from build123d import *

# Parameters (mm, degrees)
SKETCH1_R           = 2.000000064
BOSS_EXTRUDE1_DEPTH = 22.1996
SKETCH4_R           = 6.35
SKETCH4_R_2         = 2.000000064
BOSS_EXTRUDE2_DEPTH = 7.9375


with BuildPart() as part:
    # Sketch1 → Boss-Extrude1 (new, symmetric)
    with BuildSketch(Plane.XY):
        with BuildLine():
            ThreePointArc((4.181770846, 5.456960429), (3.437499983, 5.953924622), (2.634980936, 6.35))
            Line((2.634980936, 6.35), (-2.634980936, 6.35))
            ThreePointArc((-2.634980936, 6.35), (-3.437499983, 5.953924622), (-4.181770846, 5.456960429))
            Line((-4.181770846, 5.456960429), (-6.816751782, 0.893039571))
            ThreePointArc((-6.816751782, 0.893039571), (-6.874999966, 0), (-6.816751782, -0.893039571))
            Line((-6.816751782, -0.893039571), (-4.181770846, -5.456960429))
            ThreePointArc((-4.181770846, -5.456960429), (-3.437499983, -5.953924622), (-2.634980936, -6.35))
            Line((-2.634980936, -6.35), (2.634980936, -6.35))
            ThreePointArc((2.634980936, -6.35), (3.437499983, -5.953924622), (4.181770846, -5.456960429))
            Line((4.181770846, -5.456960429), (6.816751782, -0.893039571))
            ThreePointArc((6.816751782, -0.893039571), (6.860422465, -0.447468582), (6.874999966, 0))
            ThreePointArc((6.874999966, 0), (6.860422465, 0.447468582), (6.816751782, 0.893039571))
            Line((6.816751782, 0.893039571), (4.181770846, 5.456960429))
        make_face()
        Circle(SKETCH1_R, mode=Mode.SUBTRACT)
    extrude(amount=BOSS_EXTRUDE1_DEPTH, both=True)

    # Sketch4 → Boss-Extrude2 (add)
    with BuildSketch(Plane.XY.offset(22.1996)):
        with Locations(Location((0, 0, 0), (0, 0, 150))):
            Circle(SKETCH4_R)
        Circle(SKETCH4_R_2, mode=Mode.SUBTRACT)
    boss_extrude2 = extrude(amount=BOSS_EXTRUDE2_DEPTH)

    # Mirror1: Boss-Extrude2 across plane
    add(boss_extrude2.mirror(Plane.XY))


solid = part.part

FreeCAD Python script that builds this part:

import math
import FreeCAD as App
import Part
import Sketcher

V = App.Vector
Q = App.Units.Quantity

doc = App.newDocument("Part")
body = doc.addObject("PartDesign::Body", "Body")

sketch1 = body.newObject("Sketcher::SketchObject", "Sketch")
sketch1.AttachmentSupport = (doc.getObject("XY_Plane"), [""])
sketch1.MapMode = "FlatFace"
sketch1.addGeometry([
    Part.ArcOfCircle(Part.Circle(V(0, 0, 0), V(0, 0, 1), 6.9), math.radians(52.54), math.radians(67.46)),
    Part.LineSegment(V(2.6, 6.3, 0), V(-2.6, 6.3, 0)),
    Part.ArcOfCircle(Part.Circle(V(0, 0, 0), V(0, 0, 1), 6.9), math.radians(112.54), math.radians(127.46)),
    Part.LineSegment(V(-4.2, 5.5, 0), V(-6.8, 0.9, 0)),
    Part.ArcOfCircle(Part.Circle(V(0, 0, 0), V(0, 0, 1), 6.9), math.radians(172.54), math.radians(187.46)),
    Part.LineSegment(V(-6.8, -0.9, 0), V(-4.2, -5.5, 0)),
    Part.ArcOfCircle(Part.Circle(V(0, 0, 0), V(0, 0, 1), 6.9), math.radians(-127.46), math.radians(-112.54)),
    Part.LineSegment(V(-2.6, -6.3, 0), V(2.6, -6.3, 0)),
    Part.ArcOfCircle(Part.Circle(V(0, 0, 0), V(0, 0, 1), 6.9), math.radians(-67.46), math.radians(-52.54)),
    Part.LineSegment(V(4.2, -5.5, 0), V(6.8, -0.9, 0)),
    Part.ArcOfCircle(Part.Circle(V(0, 0, 0), V(0, 0, 1), 6.9), math.radians(-7.46), math.radians(0)),
    Part.ArcOfCircle(Part.Circle(V(0, 0, 0), V(0, 0, 1), 6.9), math.radians(0), math.radians(7.46)),
    Part.LineSegment(V(6.8, 0.9, 0), V(4.2, 5.5, 0)),
    Part.Circle(V(0, 0, 0), V(0, 0, 1), 2),
], False)
sketch1.addConstraint([
    Sketcher.Constraint("Coincident", 0, 2, 1, 1),
    Sketcher.Constraint("Coincident", 1, 2, 2, 1),
    Sketcher.Constraint("Coincident", 2, 2, 3, 1),
    Sketcher.Constraint("Coincident", 3, 2, 4, 1),
    Sketcher.Constraint("Coincident", 4, 2, 5, 1),
    Sketcher.Constraint("Coincident", 5, 2, 6, 1),
    Sketcher.Constraint("Coincident", 6, 2, 7, 1),
    Sketcher.Constraint("Coincident", 7, 2, 8, 1),
    Sketcher.Constraint("Coincident", 8, 2, 9, 1),
    Sketcher.Constraint("Coincident", 9, 2, 10, 1),
    Sketcher.Constraint("Tangent", 10, 2, 11, 1),
    Sketcher.Constraint("Coincident", 11, 2, 12, 1),
    Sketcher.Constraint("Coincident", 12, 2, 0, 1),
    Sketcher.Constraint("Horizontal", 1),
    Sketcher.Constraint("Horizontal", 7),
    Sketcher.Constraint("Coincident", 0, 3, -1, 1),
    Sketcher.Constraint("Coincident", 2, 3, -1, 1),
    Sketcher.Constraint("Coincident", 4, 3, -1, 1),
    Sketcher.Constraint("Coincident", 6, 3, -1, 1),
    Sketcher.Constraint("Coincident", 8, 3, -1, 1),
    Sketcher.Constraint("Coincident", 10, 3, -1, 1),
    Sketcher.Constraint("Coincident", 13, 3, -1, 1),
    Sketcher.Constraint("Equal", 0, 2),
    Sketcher.Constraint("Equal", 2, 4),
    Sketcher.Constraint("Equal", 4, 6),
    Sketcher.Constraint("Equal", 6, 8),
    Sketcher.Constraint("Equal", 8, 10),
    Sketcher.Constraint("Equal", 10, 11),
    Sketcher.Constraint("PointOnObject", 10, 2, -1),
    Sketcher.Constraint("Parallel", 3, 9),
    Sketcher.Constraint("Parallel", 5, 12),
    Sketcher.Constraint("Horizontal", 5, 2, 8, 2),
    Sketcher.Constraint("Horizontal", 4, 2, 9, 2),
    Sketcher.Constraint("Horizontal", 3, 2, 11, 2),
    Sketcher.Constraint("Vertical", 3, 2, 4, 2),
    Sketcher.Constraint("Vertical", 1, 2, 6, 2),
    Sketcher.Constraint("Angle", 3, Q("-120 deg")),
    Sketcher.Constraint("Diameter", 13, Q("4 mm")),
    Sketcher.Constraint("DistanceY", -1, 1, 0, 2, Q("0.25 in")),
    Sketcher.Constraint("Radius", 0, Q("6.875 mm")),
    Sketcher.Constraint("Distance", 3, Q("5.269962 mm")),
])
pad1 = body.newObject("PartDesign::Pad", "Pad")
pad1.Profile = sketch1
pad1.Length = Q("1.748 in")
pad1.Midplane = True

sketch2 = body.newObject("Sketcher::SketchObject", "Sketch001")
sketch2.AttachmentSupport = (doc.getObject("XY_Plane"), [""])
sketch2.MapMode = "FlatFace"
sketch2.AttachmentOffset = App.Placement(V(0, 0, 0.874 * 25.4), App.Rotation())
sketch2.addGeometry([
    Part.Circle(V(0, 0, 0), V(0, 0, 1), 6.3),
    Part.Circle(V(0, 0, 0), V(0, 0, 1), 2),
], False)
sketch2.addConstraint([
    Sketcher.Constraint("Coincident", 0, 3, -1, 1),
    Sketcher.Constraint("Coincident", 1, 3, -1, 1),
    Sketcher.Constraint("Diameter", 0, Q("0.5 in")),
    Sketcher.Constraint("Diameter", 1, Q("4 mm")),
])
pad2 = body.newObject("PartDesign::Pad", "Pad001")
pad2.Profile = sketch2
pad2.Length = Q("0.3125 in")
doc.recompute()

mirrored = body.newObject("PartDesign::Mirrored", "Mirrored")
mirrored.Originals = [pad2]
mirrored.MirrorPlane = (doc.getObject("XY_Plane"), [""])
body.Tip = mirrored

doc.recompute()
